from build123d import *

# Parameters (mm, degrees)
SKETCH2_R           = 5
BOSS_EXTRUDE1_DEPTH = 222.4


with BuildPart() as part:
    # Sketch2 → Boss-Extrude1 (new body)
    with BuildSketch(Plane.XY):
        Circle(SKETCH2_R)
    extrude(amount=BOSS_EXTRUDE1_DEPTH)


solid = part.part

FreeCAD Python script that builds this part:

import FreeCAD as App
import Part
import Sketcher
from FreeCAD import Vector

doc = App.newDocument("Part")
body = doc.addObject("PartDesign::Body", "Body")

sketch1 = doc.addObject("Sketcher::SketchObject", "Sketch")
body.addObject(sketch1)
sketch1.AttachmentSupport = (doc.XY_Plane, [""])
sketch1.MapMode = "FlatFace"
sketch1.addGeometry(Part.Circle(Vector(0, 0, 0), Vector(0, 0, 1), 5), False)
sketch1.addConstraint([
    Sketcher.Constraint("Coincident", 0, 3, -1, 1),
    Sketcher.Constraint("Diameter", 0, 10.0),
])
pad1 = doc.addObject("PartDesign::Pad", "Pad")
body.addObject(pad1)
pad1.Profile = sketch1
pad1.Length = 222.4

doc.recompute()
